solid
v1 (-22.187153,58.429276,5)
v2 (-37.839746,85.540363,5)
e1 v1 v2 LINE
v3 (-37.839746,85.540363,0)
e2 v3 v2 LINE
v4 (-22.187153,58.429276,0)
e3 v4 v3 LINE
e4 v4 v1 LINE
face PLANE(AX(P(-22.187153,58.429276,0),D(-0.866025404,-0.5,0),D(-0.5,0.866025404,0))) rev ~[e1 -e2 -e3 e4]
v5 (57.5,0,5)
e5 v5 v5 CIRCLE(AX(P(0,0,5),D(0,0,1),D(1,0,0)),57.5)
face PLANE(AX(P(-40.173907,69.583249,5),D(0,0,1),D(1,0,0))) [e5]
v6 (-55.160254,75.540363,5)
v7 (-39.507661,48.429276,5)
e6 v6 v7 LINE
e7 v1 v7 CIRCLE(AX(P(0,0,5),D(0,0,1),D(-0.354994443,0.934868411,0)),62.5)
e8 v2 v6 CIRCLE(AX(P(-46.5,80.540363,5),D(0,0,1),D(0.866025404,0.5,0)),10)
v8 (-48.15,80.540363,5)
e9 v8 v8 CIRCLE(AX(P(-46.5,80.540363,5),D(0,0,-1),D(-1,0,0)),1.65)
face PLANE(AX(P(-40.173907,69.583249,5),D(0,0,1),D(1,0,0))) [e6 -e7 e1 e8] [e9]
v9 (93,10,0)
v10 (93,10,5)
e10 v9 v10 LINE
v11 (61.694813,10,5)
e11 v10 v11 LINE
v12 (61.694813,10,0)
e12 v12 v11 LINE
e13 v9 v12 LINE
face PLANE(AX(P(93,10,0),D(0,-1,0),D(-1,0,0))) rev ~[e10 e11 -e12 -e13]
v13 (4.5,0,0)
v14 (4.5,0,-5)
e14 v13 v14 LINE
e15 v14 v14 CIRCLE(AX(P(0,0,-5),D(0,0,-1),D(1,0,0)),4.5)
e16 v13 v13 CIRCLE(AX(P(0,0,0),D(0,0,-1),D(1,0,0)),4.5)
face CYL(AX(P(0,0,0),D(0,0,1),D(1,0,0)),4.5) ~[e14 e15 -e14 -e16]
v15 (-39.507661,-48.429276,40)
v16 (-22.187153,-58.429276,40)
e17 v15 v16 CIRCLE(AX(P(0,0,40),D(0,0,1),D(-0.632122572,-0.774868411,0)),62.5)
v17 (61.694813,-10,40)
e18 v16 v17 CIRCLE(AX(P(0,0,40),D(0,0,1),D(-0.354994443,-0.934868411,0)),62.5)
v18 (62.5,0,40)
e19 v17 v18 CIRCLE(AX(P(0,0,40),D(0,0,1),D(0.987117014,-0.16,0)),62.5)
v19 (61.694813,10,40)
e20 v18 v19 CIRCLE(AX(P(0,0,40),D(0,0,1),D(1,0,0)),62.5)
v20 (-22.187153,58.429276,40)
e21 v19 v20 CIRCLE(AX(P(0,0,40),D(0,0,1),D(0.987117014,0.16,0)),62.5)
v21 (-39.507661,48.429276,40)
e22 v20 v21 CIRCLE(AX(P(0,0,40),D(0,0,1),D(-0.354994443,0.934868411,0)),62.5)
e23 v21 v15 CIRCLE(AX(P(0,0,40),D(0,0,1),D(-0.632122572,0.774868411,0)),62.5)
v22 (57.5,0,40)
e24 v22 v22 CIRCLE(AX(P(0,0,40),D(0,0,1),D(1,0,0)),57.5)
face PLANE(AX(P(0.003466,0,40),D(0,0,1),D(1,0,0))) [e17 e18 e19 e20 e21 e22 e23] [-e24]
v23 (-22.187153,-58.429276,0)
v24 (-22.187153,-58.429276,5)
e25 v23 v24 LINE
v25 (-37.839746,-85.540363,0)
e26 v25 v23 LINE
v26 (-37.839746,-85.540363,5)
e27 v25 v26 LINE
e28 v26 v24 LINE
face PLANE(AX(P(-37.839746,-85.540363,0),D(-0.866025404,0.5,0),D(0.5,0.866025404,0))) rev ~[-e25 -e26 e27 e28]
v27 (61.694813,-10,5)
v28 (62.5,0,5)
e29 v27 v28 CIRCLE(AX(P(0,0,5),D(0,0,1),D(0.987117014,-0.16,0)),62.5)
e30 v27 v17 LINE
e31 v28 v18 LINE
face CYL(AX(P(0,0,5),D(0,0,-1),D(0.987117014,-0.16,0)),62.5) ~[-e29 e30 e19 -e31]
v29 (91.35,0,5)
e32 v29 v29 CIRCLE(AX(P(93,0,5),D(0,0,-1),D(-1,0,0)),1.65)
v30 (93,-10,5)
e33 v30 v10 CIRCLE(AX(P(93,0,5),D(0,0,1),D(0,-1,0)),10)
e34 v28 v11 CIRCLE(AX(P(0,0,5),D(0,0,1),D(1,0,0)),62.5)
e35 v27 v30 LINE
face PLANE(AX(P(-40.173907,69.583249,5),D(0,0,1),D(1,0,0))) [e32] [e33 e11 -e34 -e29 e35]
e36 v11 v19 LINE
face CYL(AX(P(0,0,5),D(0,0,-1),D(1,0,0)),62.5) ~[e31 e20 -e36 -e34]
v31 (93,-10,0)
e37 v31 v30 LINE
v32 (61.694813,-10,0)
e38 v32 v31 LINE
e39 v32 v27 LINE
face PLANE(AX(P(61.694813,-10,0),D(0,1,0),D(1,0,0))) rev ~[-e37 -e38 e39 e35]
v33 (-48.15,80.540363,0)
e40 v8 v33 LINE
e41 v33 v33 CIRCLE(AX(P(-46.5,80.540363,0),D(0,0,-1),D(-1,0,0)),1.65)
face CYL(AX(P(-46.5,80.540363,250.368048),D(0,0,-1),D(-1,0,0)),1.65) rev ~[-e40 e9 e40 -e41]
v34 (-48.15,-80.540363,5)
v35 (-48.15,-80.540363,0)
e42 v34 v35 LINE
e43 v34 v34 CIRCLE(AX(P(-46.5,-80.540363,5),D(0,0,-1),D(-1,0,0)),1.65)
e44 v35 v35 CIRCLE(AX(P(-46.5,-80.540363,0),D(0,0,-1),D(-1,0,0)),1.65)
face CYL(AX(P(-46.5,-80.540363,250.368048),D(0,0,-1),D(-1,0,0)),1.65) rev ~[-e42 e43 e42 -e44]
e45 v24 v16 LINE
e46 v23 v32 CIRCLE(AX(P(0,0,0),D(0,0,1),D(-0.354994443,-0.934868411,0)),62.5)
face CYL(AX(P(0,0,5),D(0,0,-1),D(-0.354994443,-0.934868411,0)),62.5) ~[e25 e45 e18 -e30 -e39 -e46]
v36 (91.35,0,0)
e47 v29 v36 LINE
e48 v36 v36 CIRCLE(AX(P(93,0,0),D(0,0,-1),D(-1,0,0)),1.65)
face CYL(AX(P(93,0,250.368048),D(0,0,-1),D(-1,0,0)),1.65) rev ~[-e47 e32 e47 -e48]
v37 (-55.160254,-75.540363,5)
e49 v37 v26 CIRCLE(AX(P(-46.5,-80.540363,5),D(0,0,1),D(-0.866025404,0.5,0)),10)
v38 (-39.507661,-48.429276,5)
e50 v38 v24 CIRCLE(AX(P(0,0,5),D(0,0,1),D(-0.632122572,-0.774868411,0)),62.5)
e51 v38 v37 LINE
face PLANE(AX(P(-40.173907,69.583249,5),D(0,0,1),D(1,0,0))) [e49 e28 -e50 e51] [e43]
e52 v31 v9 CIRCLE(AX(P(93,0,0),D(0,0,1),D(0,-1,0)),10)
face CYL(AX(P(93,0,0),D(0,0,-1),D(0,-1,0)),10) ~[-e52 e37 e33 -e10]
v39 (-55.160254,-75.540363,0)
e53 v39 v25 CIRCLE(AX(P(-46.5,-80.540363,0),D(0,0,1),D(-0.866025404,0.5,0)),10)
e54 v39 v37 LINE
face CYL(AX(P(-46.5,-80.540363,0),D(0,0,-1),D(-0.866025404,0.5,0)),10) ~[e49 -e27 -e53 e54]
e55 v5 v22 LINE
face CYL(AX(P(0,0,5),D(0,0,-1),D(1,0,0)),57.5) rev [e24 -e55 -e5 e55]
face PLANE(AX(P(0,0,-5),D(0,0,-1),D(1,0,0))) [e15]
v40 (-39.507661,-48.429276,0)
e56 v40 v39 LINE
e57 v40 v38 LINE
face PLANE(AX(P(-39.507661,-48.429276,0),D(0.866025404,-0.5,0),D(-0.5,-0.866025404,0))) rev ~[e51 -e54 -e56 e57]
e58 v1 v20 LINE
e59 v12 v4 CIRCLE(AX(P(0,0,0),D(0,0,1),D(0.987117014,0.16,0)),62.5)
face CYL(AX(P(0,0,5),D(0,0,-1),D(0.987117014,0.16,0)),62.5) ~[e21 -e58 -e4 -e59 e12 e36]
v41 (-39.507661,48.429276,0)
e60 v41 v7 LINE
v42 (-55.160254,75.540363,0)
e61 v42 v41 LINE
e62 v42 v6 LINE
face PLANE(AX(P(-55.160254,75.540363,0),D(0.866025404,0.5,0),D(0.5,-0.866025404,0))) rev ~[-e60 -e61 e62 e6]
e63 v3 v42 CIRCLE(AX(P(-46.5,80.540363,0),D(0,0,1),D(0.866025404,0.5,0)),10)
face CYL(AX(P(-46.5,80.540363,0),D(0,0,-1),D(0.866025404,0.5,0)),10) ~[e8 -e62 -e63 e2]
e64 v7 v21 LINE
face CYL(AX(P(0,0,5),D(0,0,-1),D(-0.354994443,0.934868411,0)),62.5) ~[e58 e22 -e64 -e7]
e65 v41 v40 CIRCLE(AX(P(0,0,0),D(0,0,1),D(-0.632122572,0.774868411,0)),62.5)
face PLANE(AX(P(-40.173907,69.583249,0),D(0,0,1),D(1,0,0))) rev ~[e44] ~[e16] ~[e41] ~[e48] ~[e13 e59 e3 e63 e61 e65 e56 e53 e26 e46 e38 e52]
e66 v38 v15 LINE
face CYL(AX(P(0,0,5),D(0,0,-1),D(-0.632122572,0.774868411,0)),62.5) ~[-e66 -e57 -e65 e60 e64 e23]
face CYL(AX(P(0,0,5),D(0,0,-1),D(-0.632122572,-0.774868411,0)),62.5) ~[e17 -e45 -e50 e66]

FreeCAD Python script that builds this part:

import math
import FreeCAD as App
import Part
import Sketcher
from FreeCAD import Vector
Q = App.Units.Quantity

doc = App.newDocument("Part")
params = doc.addObject("Spreadsheet::Sheet", "Params")
for row, (alias, value) in enumerate([
    ("sketch1_radius", "10 mm"),
    ("sketch1_radius2", "62.5 mm"),
    ("pad1_length", "5 mm"),
    ("sketch2_diameter", "3.3 mm"),
    ("hole_diameter", "3.3 mm"),
    ("sketch3_diameter", "9 mm"),
    ("pad2_length", "5 mm"),
    ("sketch4_diameter", "115 mm"),
    ("sketch4_radius", "62.5 mm"),
    ("pad3_length", "35 mm"),
], start=1):
    params.set(f"A{row}", alias)
    params.set(f"B{row}", "=" + value)
    params.setAlias(f"B{row}", alias)

body = doc.addObject("PartDesign::Body", "Body")

# Sketch on XY plane
sketch1 = body.newObject("Sketcher::SketchObject", "Sketch")
sketch1.AttachmentSupport = (doc.getObject("XY_Plane"), [""])
sketch1.MapMode = "FlatFace"
sketch1.addGeometry(Part.LineSegment(Vector(-22, 58, 0), Vector(-38, 86, 0)), False)
sketch1.addGeometry(Part.ArcOfCircle(Part.Circle(Vector(-46, 81, 0), Vector(0, 0, 1), 10), math.radians(30), math.radians(210)), False)
sketch1.addGeometry(Part.LineSegment(Vector(-55, 76, 0), Vector(-40, 48, 0)), False)
sketch1.addGeometry(Part.ArcOfCircle(Part.Circle(Vector(0, 0, 0), Vector(0, 0, 1), 62), math.radians(129), math.radians(231)), False)
sketch1.addGeometry(Part.LineSegment(Vector(-40, -48, 0), Vector(-55, -76, 0)), False)
sketch1.addGeometry(Part.ArcOfCircle(Part.Circle(Vector(-46, -81, 0), Vector(0, 0, 1), 10), math.radians(150), math.radians(330)), False)
sketch1.addGeometry(Part.LineSegment(Vector(-38, -86, 0), Vector(-22, -58, 0)), False)
sketch1.addGeometry(Part.ArcOfCircle(Part.Circle(Vector(0, 0, 0), Vector(0, 0, 1), 62), math.radians(-111), math.radians(-9)), False)
sketch1.addGeometry(Part.LineSegment(Vector(62, -10, 0), Vector(93, -10, 0)), False)
sketch1.addGeometry(Part.ArcOfCircle(Part.Circle(Vector(93, 0, 0), Vector(0, 0, 1), 10), math.radians(-90), math.radians(90)), False)
sketch1.addGeometry(Part.LineSegment(Vector(93, 10, 0), Vector(62, 10, 0)), False)
sketch1.addGeometry(Part.ArcOfCircle(Part.Circle(Vector(0, 0, 0), Vector(0, 0, 1), 62), math.radians(9), math.radians(111)), False)
sketch1.addConstraint(Sketcher.Constraint("Tangent", 0, 2, 1, 1))
sketch1.addConstraint(Sketcher.Constraint("Tangent", 1, 2, 2, 1))
sketch1.addConstraint(Sketcher.Constraint("Coincident", 2, 2, 3, 1))
sketch1.addConstraint(Sketcher.Constraint("Coincident", 3, 2, 4, 1))
sketch1.addConstraint(Sketcher.Constraint("Tangent", 4, 2, 5, 1))
sketch1.addConstraint(Sketcher.Constraint("Tangent", 5, 2, 6, 1))
sketch1.addConstraint(Sketcher.Constraint("Coincident", 6, 2, 7, 1))
sketch1.addConstraint(Sketcher.Constraint("Coincident", 7, 2, 8, 1))
sketch1.addConstraint(Sketcher.Constraint("Tangent", 8, 2, 9, 1))
sketch1.addConstraint(Sketcher.Constraint("Tangent", 9, 2, 10, 1))
sketch1.addConstraint(Sketcher.Constraint("Coincident", 10, 2, 11, 1))
sketch1.addConstraint(Sketcher.Constraint("Coincident", 11, 2, 0, 1))
sketch1.addConstraint(Sketcher.Constraint("Horizontal", 8))
sketch1.addConstraint(Sketcher.Constraint("Horizontal", 10))
sketch1.addConstraint(Sketcher.Constraint("Coincident", 3, 3, -1, 1))
sketch1.addConstraint(Sketcher.Constraint("Coincident", 7, 3, -1, 1))
sketch1.addConstraint(Sketcher.Constraint("Coincident", 11, 3, -1, 1))
sketch1.addConstraint(Sketcher.Constraint("Equal", 1, 5))
sketch1.addConstraint(Sketcher.Constraint("Equal", 3, 7))
sketch1.addConstraint(Sketcher.Constraint("Equal", 5, 9))
sketch1.addConstraint(Sketcher.Constraint("Equal", 7, 11))
sketch1.addConstraint(Sketcher.Constraint("Symmetric", 1, 3, 5, 3, -1))
sketch1.addConstraint(Sketcher.Constraint("PointOnObject", 9, 3, -1))
sketch1.addConstraint(Sketcher.Constraint("Parallel", 0, 2))
sketch1.addConstraint(Sketcher.Constraint("Parallel", 4, 6))
sketch1.addConstraint(Sketcher.Constraint("Vertical", 2, 2, 3, 2))
sketch1.addConstraint(Sketcher.Constraint("Equal", 0, 2))
sketch1.addConstraint(Sketcher.Constraint("Radius", 1, Q("10 mm")))
sketch1.addConstraint(Sketcher.Constraint("Radius", 3, Q("62.5 mm")))
sketch1.addConstraint(Sketcher.Constraint("Angle", 0, Q("120 deg")))
sketch1.addConstraint(Sketcher.Constraint("DistanceX", -1, 1, 9, 3, Q("93 mm")))
sketch1.addConstraint(Sketcher.Constraint("DistanceX", 1, 3, -1, 1, Q("46.5 mm")))
sketch1.setExpression("Constraints[27]", "Params.sketch1_radius")
sketch1.setExpression("Constraints[28]", "Params.sketch1_radius2")
pad1 = body.newObject("PartDesign::Pad", "Pad")
pad1.Profile = sketch1
pad1.setExpression("Length", "Params.pad1_length")

# Sketch on XY plane
sketch2 = body.newObject("Sketcher::SketchObject", "Sketch001")
sketch2.AttachmentSupport = (doc.getObject("XY_Plane"), [""])
sketch2.MapMode = "FlatFace"
sketch2.AttachmentOffset = App.Placement(Vector(0, 0, 5), App.Rotation())
sketch2.addGeometry(Part.Circle(Vector(-46.5, 80.5, 0), Vector(0, 0, 1), 1.6), False)
sketch2.addGeometry(Part.Circle(Vector(93, 0, 0), Vector(0, 0, 1), 1.6), False)
sketch2.addGeometry(Part.Circle(Vector(-46.5, -80.5, 0), Vector(0, 0, 1), 1.6), False)
sketch2.addConstraint(Sketcher.Constraint("Equal", 0, 1))
sketch2.addConstraint(Sketcher.Constraint("Equal", 1, 2))
sketch2.addConstraint(Sketcher.Constraint("Symmetric", 0, 3, 2, 3, -1))
sketch2.addConstraint(Sketcher.Constraint("PointOnObject", 1, 3, -1))
sketch2.addConstraint(Sketcher.Constraint("Diameter", 0, Q("3.3 mm")))
sketch2.addConstraint(Sketcher.Constraint("DistanceX", -1, 1, 1, 3, Q("93 mm")))
sketch2.addConstraint(Sketcher.Constraint("DistanceX", 0, 3, -1, 1, Q("46.5 mm")))
sketch2.addConstraint(Sketcher.Constraint("DistanceY", -1, 1, 0, 3, Q("80.540363 mm")))
sketch2.setExpression("Constraints[4]", "Params.sketch2_diameter")
doc.recompute()
hole = body.newObject("PartDesign::Hole", "Hole")
hole.Profile = sketch2
hole.ThreadType = "None"
hole.setExpression("Diameter", "Params.hole_diameter")
hole.DepthType = "ThroughAll"

# Sketch on XY plane
sketch3 = body.newObject("Sketcher::SketchObject", "Sketch002")
sketch3.AttachmentSupport = (doc.getObject("XY_Plane"), [""])
sketch3.MapMode = "FlatFace"
sketch3.addGeometry(Part.Circle(Vector(0, 0, 0), Vector(0, 0, 1), 4.5), False)
sketch3.addConstraint(Sketcher.Constraint("Coincident", 0, 3, -1, 1))
sketch3.addConstraint(Sketcher.Constraint("Diameter", 0, Q("9 mm")))
sketch3.setExpression("Constraints[1]", "Params.sketch3_diameter")
pad2 = body.newObject("PartDesign::Pad", "Pad001")
pad2.Profile = sketch3
pad2.setExpression("Length", "Params.pad2_length")
pad2.Reversed = True

# Sketch on XY plane
sketch4 = body.newObject("Sketcher::SketchObject", "Sketch003")
sketch4.AttachmentSupport = (doc.getObject("XY_Plane"), [""])
sketch4.MapMode = "FlatFace"
sketch4.AttachmentOffset = App.Placement(Vector(0, 0, 5), App.Rotation())
sketch4.addGeometry(Part.ArcOfCircle(Part.Circle(Vector(0, 0, 0), Vector(0, 0, 1), 62), math.radians(-9.21), math.radians(0)), False)
sketch4.addGeometry(Part.ArcOfCircle(Part.Circle(Vector(0, 0, 0), Vector(0, 0, 1), 62), math.radians(0), math.radians(9.21)), False)
sketch4.addGeometry(Part.ArcOfCircle(Part.Circle(Vector(0, 0, 0), Vector(0, 0, 1), 62), math.radians(9), math.radians(111)), False)
sketch4.addGeometry(Part.ArcOfCircle(Part.Circle(Vector(0, 0, 0), Vector(0, 0, 1), 63), math.radians(110.79), math.radians(129.21)), False)
sketch4.addGeometry(Part.ArcOfCircle(Part.Circle(Vector(0, 0, 0), Vector(0, 0, 1), 62), math.radians(129), math.radians(231)), False)
sketch4.addGeometry(Part.ArcOfCircle(Part.Circle(Vector(0, 0, 0), Vector(0, 0, 1), 63), math.radians(-129.21), math.radians(-110.79)), False)
sketch4.addGeometry(Part.ArcOfCircle(Part.Circle(Vector(0, 0, 0), Vector(0, 0, 1), 62), math.radians(-111), math.radians(-9)), False)
sketch4.addGeometry(Part.Circle(Vector(0, 0, 0), Vector(0, 0, 1), 58), False)
sketch4.addConstraint(Sketcher.Constraint("Tangent", 0, 2, 1, 1))
sketch4.addConstraint(Sketcher.Constraint("Tangent", 1, 2, 2, 1))
sketch4.addConstraint(Sketcher.Constraint("Tangent", 2, 2, 3, 1))
sketch4.addConstraint(Sketcher.Constraint("Tangent", 3, 2, 4, 1))
sketch4.addConstraint(Sketcher.Constraint("Tangent", 4, 2, 5, 1))
sketch4.addConstraint(Sketcher.Constraint("Tangent", 5, 2, 6, 1))
sketch4.addConstraint(Sketcher.Constraint("Tangent", 6, 2, 0, 1))
sketch4.addConstraint(Sketcher.Constraint("Coincident", 0, 3, -1, 1))
sketch4.addConstraint(Sketcher.Constraint("Coincident", 2, 3, -1, 1))
sketch4.addConstraint(Sketcher.Constraint("Coincident", 4, 3, -1, 1))
sketch4.addConstraint(Sketcher.Constraint("Coincident", 7, 3, -1, 1))
sketch4.addConstraint(Sketcher.Constraint("PointOnObject", 0, 2, -1))
sketch4.addConstraint(Sketcher.Constraint("Vertical", 3, 2, 4, 2))
sketch4.addConstraint(Sketcher.Constraint("Vertical", 2, 2, 5, 2))
sketch4.addConstraint(Sketcher.Constraint("Vertical", 1, 2, 6, 2))
sketch4.addConstraint(Sketcher.Constraint("Diameter", 7, Q("115 mm")))
sketch4.addConstraint(Sketcher.Constraint("Radius", 0, Q("62.5 mm")))
sketch4.addConstraint(Sketcher.Constraint("DistanceY", -1, 1, 1, 2, Q("10 mm")))
sketch4.addConstraint(Sketcher.Constraint("DistanceY", 3, 2, 2, 2, Q("10 mm")))
sketch4.addConstraint(Sketcher.Constraint("DistanceX", 3, 2, -1, 1, Q("39.507661 mm")))
sketch4.setExpression("Constraints[15]", "Params.sketch4_diameter")
sketch4.setExpression("Constraints[16]", "Params.sketch4_radius")
pad3 = body.newObject("PartDesign::Pad", "Pad002")
pad3.Profile = sketch4
pad3.setExpression("Length", "Params.pad3_length")

doc.recompute()
